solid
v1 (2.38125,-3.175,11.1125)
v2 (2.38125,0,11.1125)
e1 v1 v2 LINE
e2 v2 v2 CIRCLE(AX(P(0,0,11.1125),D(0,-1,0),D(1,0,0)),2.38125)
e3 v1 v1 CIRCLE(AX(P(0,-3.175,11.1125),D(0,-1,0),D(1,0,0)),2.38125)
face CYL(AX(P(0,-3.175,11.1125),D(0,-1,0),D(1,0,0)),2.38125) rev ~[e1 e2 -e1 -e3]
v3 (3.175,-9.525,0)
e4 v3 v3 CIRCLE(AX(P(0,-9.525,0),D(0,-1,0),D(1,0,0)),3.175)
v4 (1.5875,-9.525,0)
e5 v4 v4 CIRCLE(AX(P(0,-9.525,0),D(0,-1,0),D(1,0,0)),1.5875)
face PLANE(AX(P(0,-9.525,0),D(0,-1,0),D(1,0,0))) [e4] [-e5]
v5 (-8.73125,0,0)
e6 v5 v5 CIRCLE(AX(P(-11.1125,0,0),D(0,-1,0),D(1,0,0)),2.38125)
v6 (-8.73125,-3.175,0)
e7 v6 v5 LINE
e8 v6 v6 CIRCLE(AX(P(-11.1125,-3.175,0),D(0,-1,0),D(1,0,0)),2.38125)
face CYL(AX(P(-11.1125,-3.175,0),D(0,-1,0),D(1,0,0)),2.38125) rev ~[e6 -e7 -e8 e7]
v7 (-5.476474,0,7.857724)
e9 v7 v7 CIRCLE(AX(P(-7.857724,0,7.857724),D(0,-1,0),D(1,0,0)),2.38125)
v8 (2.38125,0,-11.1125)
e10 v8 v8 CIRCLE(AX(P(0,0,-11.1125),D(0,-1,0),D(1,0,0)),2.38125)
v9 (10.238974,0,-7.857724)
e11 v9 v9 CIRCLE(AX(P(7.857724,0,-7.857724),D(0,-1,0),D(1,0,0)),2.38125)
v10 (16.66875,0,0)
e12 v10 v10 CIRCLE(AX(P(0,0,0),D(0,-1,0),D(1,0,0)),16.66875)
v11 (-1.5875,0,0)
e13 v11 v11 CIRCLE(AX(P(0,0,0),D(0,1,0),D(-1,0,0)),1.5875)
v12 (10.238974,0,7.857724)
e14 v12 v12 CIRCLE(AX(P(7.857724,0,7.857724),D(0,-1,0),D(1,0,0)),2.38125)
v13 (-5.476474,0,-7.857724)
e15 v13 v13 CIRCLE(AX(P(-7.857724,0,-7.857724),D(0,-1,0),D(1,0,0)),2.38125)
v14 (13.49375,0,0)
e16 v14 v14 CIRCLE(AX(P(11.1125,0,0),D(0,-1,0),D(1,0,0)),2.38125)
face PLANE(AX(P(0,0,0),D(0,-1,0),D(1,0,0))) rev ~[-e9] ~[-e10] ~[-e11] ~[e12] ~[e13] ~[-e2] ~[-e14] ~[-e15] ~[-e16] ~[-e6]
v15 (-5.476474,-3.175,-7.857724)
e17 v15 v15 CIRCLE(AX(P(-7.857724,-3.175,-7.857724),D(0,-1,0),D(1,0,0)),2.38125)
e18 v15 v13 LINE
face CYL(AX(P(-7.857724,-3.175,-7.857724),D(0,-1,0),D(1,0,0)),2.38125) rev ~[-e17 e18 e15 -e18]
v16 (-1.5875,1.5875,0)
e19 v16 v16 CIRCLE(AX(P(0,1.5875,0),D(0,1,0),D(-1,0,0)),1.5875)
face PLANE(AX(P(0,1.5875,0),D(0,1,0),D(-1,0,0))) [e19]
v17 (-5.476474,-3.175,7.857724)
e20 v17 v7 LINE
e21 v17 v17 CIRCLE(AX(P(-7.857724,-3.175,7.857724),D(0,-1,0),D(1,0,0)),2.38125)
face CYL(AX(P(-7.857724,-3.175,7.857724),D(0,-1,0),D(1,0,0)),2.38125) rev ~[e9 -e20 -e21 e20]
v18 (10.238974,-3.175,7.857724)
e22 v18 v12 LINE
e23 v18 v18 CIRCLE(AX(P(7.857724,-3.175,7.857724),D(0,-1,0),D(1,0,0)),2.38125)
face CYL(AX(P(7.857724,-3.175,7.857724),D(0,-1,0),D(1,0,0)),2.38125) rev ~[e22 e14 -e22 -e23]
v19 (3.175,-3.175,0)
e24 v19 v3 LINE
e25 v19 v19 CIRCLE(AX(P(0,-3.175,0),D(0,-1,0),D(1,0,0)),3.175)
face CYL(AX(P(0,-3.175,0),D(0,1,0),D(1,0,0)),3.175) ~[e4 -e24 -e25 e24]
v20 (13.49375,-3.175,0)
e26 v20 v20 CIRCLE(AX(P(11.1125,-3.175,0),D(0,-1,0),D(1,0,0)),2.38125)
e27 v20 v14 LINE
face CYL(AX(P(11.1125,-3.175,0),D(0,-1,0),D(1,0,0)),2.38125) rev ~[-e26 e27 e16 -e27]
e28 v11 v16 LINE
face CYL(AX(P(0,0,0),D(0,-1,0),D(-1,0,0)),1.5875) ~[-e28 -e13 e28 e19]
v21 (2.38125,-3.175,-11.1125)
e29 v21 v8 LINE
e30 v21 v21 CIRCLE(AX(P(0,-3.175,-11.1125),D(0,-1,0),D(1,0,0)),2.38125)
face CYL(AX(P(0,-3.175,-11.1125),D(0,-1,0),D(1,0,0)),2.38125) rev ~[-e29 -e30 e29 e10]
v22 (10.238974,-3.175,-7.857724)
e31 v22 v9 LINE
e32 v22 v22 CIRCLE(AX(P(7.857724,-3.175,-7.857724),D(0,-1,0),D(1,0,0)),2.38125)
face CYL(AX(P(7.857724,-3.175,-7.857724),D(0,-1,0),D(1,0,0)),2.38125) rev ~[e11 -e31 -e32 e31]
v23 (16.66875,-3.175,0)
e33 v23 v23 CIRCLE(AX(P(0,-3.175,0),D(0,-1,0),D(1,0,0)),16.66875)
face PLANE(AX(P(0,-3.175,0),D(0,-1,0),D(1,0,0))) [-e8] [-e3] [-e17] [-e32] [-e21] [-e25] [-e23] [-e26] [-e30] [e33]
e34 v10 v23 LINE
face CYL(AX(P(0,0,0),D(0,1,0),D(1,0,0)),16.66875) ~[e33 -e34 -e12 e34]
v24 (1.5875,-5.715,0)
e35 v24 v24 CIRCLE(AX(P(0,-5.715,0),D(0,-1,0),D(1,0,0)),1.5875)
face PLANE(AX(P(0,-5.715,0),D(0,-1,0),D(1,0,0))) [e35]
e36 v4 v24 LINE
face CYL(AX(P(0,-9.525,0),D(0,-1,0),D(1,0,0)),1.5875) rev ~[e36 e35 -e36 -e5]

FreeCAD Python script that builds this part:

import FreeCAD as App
import Part
import Sketcher
from FreeCAD import Vector
Q = App.Units.Quantity

doc = App.newDocument("Part")
body = doc.addObject("PartDesign::Body", "Body")

sketch1 = body.newObject("Sketcher::SketchObject", "Sketch")
sketch1.AttachmentSupport = (doc.getObject("XZ_Plane"), [""])
sketch1.MapMode = "FlatFace"
sketch1.addGeometry(Part.Circle(Vector(0, 0, 0), Vector(0, 0, 1), 16.66875), False)
sketch1.addConstraint([
    Sketcher.Constraint("Coincident", 0, 3, -1, 1),
    Sketcher.Constraint("Diameter", 0, Q("1.3125 in")),
])
pad1 = body.newObject("PartDesign::Pad", "Pad")
pad1.Profile = sketch1
pad1.Length = Q("0.125 in")

sketch2 = body.newObject("Sketcher::SketchObject", "Sketch001")
sketch2.AttachmentSupport = (doc.getObject("XZ_Plane"), [""])
sketch2.MapMode = "FlatFace"
sketch2.AttachmentOffset = App.Placement(Vector(0, 0, 0.125 * 25.4), App.Rotation())
sketch2.addGeometry(Part.Circle(Vector(0, 0, 0), Vector(0, 0, 1), 3.175), False)
sketch2.addConstraint([
    Sketcher.Constraint("Coincident", 0, 3, -1, 1),
    Sketcher.Constraint("Diameter", 0, Q("0.25 in")),
])
pad2 = body.newObject("PartDesign::Pad", "Pad001")
pad2.Profile = sketch2
pad2.Length = Q("0.25 in")

sketch3 = body.newObject("Sketcher::SketchObject", "Sketch002")
sketch3.AttachmentSupport = (doc.getObject("XZ_Plane"), [""])
sketch3.MapMode = "FlatFace"
sketch3.AttachmentOffset = App.Placement(Vector(0, 0, 0.375 * 25.4), App.Rotation())
sketch3.addGeometry(Part.Circle(Vector(0, 0, 0), Vector(0, 0, 1), 1.5875), False)
sketch3.addConstraint([
    Sketcher.Constraint("Coincident", 0, 3, -1, 1),
    Sketcher.Constraint("Diameter", 0, Q("0.125 in")),
])
pocket1 = body.newObject("PartDesign::Pocket", "Pocket")
pocket1.Profile = sketch3
pocket1.Length = Q("0.15 in")

sketch4 = body.newObject("Sketcher::SketchObject", "Sketch003")
sketch4.AttachmentSupport = (doc.getObject("XZ_Plane"), [""])
sketch4.MapMode = "FlatFace"
sketch4.AttachmentOffset = App.Placement(Vector(0, 0, 0.125 * 25.4), App.Rotation())
sketch4.addGeometry([
    Part.Circle(Vector(11.1125, 0, 0), Vector(0, 0, 1), 2.38125),
    Part.Circle(Vector(7.857724, 7.857724, 0), Vector(0, 0, 1), 2.38125),
    Part.Circle(Vector(0, 11.1125, 0), Vector(0, 0, 1), 2.38125),
    Part.Circle(Vector(-7.857724, 7.857724, 0), Vector(0, 0, 1), 2.38125),
    Part.Circle(Vector(-11.1125, 0, 0), Vector(0, 0, 1), 2.38125),
    Part.Circle(Vector(-7.857724, -7.857724, 0), Vector(0, 0, 1), 2.38125),
    Part.Circle(Vector(0, -11.1125, 0), Vector(0, 0, 1), 2.38125),
    Part.Circle(Vector(7.857724, -7.857724, 0), Vector(0, 0, 1), 2.38125),
], False)
sketch4.addConstraint([
    Sketcher.Constraint("Equal", 0, 1),
    Sketcher.Constraint("Equal", 1, 2),
    Sketcher.Constraint("Equal", 2, 3),
    Sketcher.Constraint("Equal", 3, 4),
    Sketcher.Constraint("Equal", 4, 5),
    Sketcher.Constraint("Equal", 5, 6),
    Sketcher.Constraint("Equal", 6, 7),
    Sketcher.Constraint("Symmetric", 0, 3, 4, 3, -1, 1),
    Sketcher.Constraint("Symmetric", 1, 3, 5, 3, -1, 1),
    Sketcher.Constraint("Symmetric", 2, 3, 6, 3, -1, 1),
    Sketcher.Constraint("Symmetric", 3, 3, 7, 3, -1, 1),
    Sketcher.Constraint("Symmetric", 1, 3, 3, 3, -2),
    Sketcher.Constraint("PointOnObject", 0, 3, -1),
    Sketcher.Constraint("PointOnObject", 2, 3, -2),
    Sketcher.Constraint("Diameter", 0, Q("0.1875 in")),
    Sketcher.Constraint("DistanceX", -1, 1, 0, 3, Q("0.4375 in")),
    Sketcher.Constraint("DistanceY", -1, 1, 2, 3, Q("0.4375 in")),
    Sketcher.Constraint("DistanceX", -1, 1, 1, 3, Q("7.857724 mm")),
    Sketcher.Constraint("DistanceY", -1, 1, 1, 3, Q("7.857724 mm")),
])
pocket2 = body.newObject("PartDesign::Pocket", "Pocket001")
pocket2.Profile = sketch4
pocket2.Length = Q("1 in")

sketch5 = body.newObject("Sketcher::SketchObject", "Sketch004")
sketch5.AttachmentSupport = (doc.getObject("XZ_Plane"), [""])
sketch5.MapMode = "FlatFace"
sketch5.addGeometry(Part.Circle(Vector(0, 0, 0), Vector(0, 0, 1), 1.5875), False)
sketch5.addConstraint([
    Sketcher.Constraint("Coincident", 0, 3, -1, 1),
    Sketcher.Constraint("Diameter", 0, Q("0.125 in")),
])
pad3 = body.newObject("PartDesign::Pad", "Pad002")
pad3.Profile = sketch5
pad3.Length = Q("0.0625 in")
pad3.Reversed = True

doc.recompute()
